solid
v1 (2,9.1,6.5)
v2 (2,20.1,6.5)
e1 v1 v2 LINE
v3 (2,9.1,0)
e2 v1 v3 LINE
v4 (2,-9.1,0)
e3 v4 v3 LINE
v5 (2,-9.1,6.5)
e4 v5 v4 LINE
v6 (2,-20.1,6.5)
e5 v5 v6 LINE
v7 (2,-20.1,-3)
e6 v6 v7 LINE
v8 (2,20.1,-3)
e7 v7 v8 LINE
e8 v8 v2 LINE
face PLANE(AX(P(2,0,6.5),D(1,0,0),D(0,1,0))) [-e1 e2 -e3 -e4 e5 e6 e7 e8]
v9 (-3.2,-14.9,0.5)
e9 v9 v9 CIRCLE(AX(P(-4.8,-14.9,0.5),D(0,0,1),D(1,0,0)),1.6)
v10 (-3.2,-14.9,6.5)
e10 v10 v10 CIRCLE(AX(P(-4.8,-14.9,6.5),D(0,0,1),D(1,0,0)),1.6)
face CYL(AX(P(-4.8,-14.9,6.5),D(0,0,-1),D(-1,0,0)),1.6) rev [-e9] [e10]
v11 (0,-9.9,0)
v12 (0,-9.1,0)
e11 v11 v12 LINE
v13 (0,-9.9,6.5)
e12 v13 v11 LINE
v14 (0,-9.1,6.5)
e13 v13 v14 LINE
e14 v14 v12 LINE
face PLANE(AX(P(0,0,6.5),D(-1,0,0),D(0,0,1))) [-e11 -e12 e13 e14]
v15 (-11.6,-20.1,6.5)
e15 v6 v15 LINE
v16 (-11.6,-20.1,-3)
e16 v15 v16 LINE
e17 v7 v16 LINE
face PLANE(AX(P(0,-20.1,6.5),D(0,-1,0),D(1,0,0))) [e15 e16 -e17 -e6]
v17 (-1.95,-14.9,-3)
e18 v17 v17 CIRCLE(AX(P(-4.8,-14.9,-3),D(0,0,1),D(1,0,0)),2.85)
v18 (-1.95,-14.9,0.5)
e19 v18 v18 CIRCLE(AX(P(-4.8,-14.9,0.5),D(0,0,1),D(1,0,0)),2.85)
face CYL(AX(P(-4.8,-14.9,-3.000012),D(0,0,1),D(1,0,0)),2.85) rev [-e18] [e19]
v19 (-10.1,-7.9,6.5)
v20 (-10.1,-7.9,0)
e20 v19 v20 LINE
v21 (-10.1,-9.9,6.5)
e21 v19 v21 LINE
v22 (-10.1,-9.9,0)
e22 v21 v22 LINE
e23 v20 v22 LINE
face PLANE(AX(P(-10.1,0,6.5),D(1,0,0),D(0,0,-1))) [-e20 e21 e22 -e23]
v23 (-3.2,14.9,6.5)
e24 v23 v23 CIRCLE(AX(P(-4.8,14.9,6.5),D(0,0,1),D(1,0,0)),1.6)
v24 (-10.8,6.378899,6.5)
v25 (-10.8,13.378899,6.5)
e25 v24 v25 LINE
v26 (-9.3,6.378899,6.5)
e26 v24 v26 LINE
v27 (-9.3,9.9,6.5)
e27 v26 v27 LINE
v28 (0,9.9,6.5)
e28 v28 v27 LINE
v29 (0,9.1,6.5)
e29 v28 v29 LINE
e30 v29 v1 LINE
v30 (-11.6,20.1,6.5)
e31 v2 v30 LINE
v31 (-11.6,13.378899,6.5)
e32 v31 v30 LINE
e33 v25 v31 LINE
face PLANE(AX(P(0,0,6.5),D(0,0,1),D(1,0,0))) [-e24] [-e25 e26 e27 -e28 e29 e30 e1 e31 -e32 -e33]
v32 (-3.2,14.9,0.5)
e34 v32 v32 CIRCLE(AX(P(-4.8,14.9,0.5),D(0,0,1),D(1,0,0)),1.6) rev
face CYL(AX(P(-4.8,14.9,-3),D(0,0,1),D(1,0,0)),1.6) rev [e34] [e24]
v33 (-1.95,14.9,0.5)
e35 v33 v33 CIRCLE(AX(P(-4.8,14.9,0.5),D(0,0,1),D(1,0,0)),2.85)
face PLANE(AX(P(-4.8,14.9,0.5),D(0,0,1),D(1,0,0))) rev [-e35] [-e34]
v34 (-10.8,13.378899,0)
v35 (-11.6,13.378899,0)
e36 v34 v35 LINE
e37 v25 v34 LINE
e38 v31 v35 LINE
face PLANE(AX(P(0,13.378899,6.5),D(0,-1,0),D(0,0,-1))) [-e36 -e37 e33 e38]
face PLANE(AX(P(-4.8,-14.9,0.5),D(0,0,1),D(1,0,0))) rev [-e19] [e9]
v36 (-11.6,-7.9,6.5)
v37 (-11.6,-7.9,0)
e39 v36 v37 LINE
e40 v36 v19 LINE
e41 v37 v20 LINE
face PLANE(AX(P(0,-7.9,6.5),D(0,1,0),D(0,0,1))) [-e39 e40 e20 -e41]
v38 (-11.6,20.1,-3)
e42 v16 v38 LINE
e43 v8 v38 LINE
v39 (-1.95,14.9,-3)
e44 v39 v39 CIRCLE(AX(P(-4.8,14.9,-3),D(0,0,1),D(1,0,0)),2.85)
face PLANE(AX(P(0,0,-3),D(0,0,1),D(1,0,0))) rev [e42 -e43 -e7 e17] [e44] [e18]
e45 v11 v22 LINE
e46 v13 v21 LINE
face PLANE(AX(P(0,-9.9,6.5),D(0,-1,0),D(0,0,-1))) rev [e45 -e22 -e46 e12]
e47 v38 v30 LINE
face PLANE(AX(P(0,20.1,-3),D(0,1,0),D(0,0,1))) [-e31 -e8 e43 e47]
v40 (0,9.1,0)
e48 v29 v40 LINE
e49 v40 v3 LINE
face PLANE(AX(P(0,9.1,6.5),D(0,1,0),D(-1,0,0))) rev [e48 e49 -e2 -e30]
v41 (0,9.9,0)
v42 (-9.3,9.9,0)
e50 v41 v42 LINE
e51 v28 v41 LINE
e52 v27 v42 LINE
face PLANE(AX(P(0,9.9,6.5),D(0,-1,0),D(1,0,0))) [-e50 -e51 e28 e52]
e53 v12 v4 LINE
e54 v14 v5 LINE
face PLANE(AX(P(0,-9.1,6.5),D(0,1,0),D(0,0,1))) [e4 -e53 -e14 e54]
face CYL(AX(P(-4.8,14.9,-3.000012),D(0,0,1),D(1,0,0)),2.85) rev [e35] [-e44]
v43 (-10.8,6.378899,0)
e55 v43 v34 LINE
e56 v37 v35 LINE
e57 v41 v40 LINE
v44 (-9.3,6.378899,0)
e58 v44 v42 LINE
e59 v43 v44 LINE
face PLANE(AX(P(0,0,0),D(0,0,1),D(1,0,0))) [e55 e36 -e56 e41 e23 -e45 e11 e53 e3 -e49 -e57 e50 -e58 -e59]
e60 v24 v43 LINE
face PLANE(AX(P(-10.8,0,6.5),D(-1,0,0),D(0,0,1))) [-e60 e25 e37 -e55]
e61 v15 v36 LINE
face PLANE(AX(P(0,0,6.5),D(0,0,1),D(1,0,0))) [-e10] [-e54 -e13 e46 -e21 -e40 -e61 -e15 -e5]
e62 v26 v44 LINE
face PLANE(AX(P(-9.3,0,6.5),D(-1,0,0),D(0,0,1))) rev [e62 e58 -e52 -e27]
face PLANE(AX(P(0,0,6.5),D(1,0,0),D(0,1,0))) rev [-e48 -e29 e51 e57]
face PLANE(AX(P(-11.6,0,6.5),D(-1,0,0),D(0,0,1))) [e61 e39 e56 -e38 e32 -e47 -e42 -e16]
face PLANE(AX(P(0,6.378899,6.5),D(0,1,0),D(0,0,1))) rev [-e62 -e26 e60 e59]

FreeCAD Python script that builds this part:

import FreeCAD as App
import Part
import Sketcher

V = App.Vector
Q = App.Units.Quantity

doc = App.newDocument("Part")
params = doc.addObject("Spreadsheet::Sheet", "Params")
for row, (alias, value) in enumerate([
    ("sketch1_diameter", "3.2 mm"),
    ("sketch1_width", "2 mm"),
    ("sketch1_height", "11 mm"),
    ("sketch1_height2", "7 mm"),
    ("sketch1_width2", "1.5 mm"),
    ("pad1_length", "6.5 mm"),
    ("sketch2_diameter", "5.7 mm"),
    ("sketch2_width", "13.6 mm"),
    ("sketch2_height", "40.2 mm"),
    ("pad2_length", "3 mm"),
    ("sketch3_diameter", "5.7 mm"),
    ("pocket1_length", "3.5 mm"),
    ("pocket1_length2", "4 mm"),
], start=1):
    params.set(f"A{row}", alias)
    params.set(f"B{row}", "=" + value)
    params.setAlias(f"B{row}", alias)

body = doc.addObject("PartDesign::Body", "Body")
body.AllowCompound = True

# Sketch on XY plane
sketch1 = doc.addObject("Sketcher::SketchObject", "Sketch")
body.addObject(sketch1)
sketch1.AttachmentSupport = (doc.XY_Plane, [""])
sketch1.MapMode = "FlatFace"
sketch1.addGeometry([
    Part.LineSegment(V(-10.1, -9.9, 0), V(-10.1, -7.9, 0)),  # 0
    Part.LineSegment(V(-10.1, -7.9, 0), V(-11.6, -7.9, 0)),  # 1
    Part.LineSegment(V(-11.6, -7.9, 0), V(-11.6, -20.1, 0)),  # 2
    Part.LineSegment(V(-11.6, -20.1, 0), V(2, -20.1, 0)),  # 3
    Part.LineSegment(V(2, -20.1, 0), V(2, -9.1, 0)),  # 4
    Part.LineSegment(V(2, -9.1, 0), V(0, -9.1, 0)),  # 5
    Part.LineSegment(V(0, -9.1, 0), V(0, -9.9, 0)),  # 6
    Part.LineSegment(V(0, -9.9, 0), V(-10.1, -9.9, 0)),  # 7
    Part.Circle(V(-4.8, -14.9, 0), V(0, 0, 1), 1.6),  # 8
    Part.LineSegment(V(-11.6, 20.1, 0), V(-11.6, 13.4, 0)),  # 9
    Part.LineSegment(V(-11.6, 13.4, 0), V(-10.8, 13.4, 0)),  # 10
    Part.LineSegment(V(-10.8, 13.4, 0), V(-10.8, 6.4, 0)),  # 11
    Part.LineSegment(V(-10.8, 6.4, 0), V(-9.3, 6.4, 0)),  # 12
    Part.LineSegment(V(-9.3, 6.4, 0), V(-9.3, 9.9, 0)),  # 13
    Part.LineSegment(V(-9.3, 9.9, 0), V(0, 9.9, 0)),  # 14
    Part.LineSegment(V(0, 9.9, 0), V(0, 9.1, 0)),  # 15
    Part.LineSegment(V(0, 9.1, 0), V(2, 9.1, 0)),  # 16
    Part.LineSegment(V(2, 9.1, 0), V(2, 20.1, 0)),  # 17
    Part.LineSegment(V(2, 20.1, 0), V(-11.6, 20.1, 0)),  # 18
    Part.Circle(V(-4.8, 14.9, 0), V(0, 0, 1), 1.6),  # 19
], False)
sketch1.addConstraint([
    Sketcher.Constraint("Coincident", 0, 2, 1, 1),
    Sketcher.Constraint("Coincident", 1, 2, 2, 1),
    Sketcher.Constraint("Coincident", 2, 2, 3, 1),
    Sketcher.Constraint("Coincident", 3, 2, 4, 1),
    Sketcher.Constraint("Coincident", 4, 2, 5, 1),
    Sketcher.Constraint("Coincident", 5, 2, 6, 1),
    Sketcher.Constraint("Coincident", 6, 2, 7, 1),
    Sketcher.Constraint("Coincident", 7, 2, 0, 1),
    Sketcher.Constraint("Coincident", 9, 2, 10, 1),
    Sketcher.Constraint("Coincident", 10, 2, 11, 1),
    Sketcher.Constraint("Coincident", 11, 2, 12, 1),
    Sketcher.Constraint("Coincident", 12, 2, 13, 1),
    Sketcher.Constraint("Coincident", 13, 2, 14, 1),
    Sketcher.Constraint("Coincident", 14, 2, 15, 1),
    Sketcher.Constraint("Coincident", 15, 2, 16, 1),
    Sketcher.Constraint("Coincident", 16, 2, 17, 1),
    Sketcher.Constraint("Coincident", 17, 2, 18, 1),
    Sketcher.Constraint("Coincident", 18, 2, 9, 1),
    Sketcher.Constraint("Vertical", 0),
    Sketcher.Constraint("Horizontal", 1),
    Sketcher.Constraint("Vertical", 2),
    Sketcher.Constraint("Horizontal", 3),
    Sketcher.Constraint("Vertical", 4),
    Sketcher.Constraint("Horizontal", 5),
    Sketcher.Constraint("Vertical", 6),
    Sketcher.Constraint("Horizontal", 7),
    Sketcher.Constraint("Vertical", 9),
    Sketcher.Constraint("Horizontal", 10),
    Sketcher.Constraint("Vertical", 11),
    Sketcher.Constraint("Horizontal", 12),
    Sketcher.Constraint("Vertical", 13),
    Sketcher.Constraint("Horizontal", 14),
    Sketcher.Constraint("Vertical", 15),
    Sketcher.Constraint("Horizontal", 16),
    Sketcher.Constraint("Vertical", 17),
    Sketcher.Constraint("Horizontal", 18),
    Sketcher.Constraint("Equal", 8, 19),
    Sketcher.Constraint("Symmetric", 6, 2, 14, 2, -1, 1),
    Sketcher.Constraint("Symmetric", 8, 3, 19, 3, -1),
    Sketcher.Constraint("Symmetric", 5, 2, 15, 2, -1),
    Sketcher.Constraint("Symmetric", 3, 2, 17, 2, -1),
    Sketcher.Constraint("Vertical", 2, 2, 9, 2),
    Sketcher.Constraint("Equal", 1, 12),
    Sketcher.Constraint("Equal", 16, 0),
    Sketcher.Constraint("Equal", 10, 6),
    Sketcher.Constraint("Diameter", 8, Q("3.2 mm")),
    Sketcher.Constraint("DistanceX", 5, 2, 5, 1, Q("2 mm")),
    Sketcher.Constraint("DistanceY", 4, 1, 4, 2, Q("11 mm")),
    Sketcher.Constraint("DistanceY", 11, 2, 11, 1, Q("7 mm")),
    Sketcher.Constraint("DistanceX", 1, 2, 1, 1, Q("1.5 mm")),
    Sketcher.Constraint("DistanceX", 3, 1, 3, 2, Q("13.6 mm")),
    Sketcher.Constraint("DistanceX", 10, 1, 10, 2, Q("0.8 mm")),
    Sketcher.Constraint("DistanceY", 8, 3, 0, 2, Q("7 mm")),
    Sketcher.Constraint("DistanceY", 2, 2, 19, 3, Q("35 mm")),
    Sketcher.Constraint("DistanceX", 10, 2, 19, 3, Q("6 mm")),
    Sketcher.Constraint("DistanceY", 9, 2, 9, 1, Q("6.721101 mm")),
])
sketch1.setExpression("Constraints[45]", "Params.sketch1_diameter")
sketch1.setExpression("Constraints[46]", "Params.sketch1_width")
sketch1.setExpression("Constraints[47]", "Params.sketch1_height")
sketch1.setExpression("Constraints[48]", "Params.sketch1_height2")
sketch1.setExpression("Constraints[49]", "Params.sketch1_width2")
pad1 = doc.addObject("PartDesign::Pad", "Pad")
body.addObject(pad1)
pad1.Profile = sketch1
pad1.setExpression("Length", "Params.pad1_length")

# Sketch on XY plane
sketch2 = doc.addObject("Sketcher::SketchObject", "Sketch001")
body.addObject(sketch2)
sketch2.AttachmentSupport = (doc.XY_Plane, [""])
sketch2.MapMode = "FlatFace"
sketch2.addGeometry([
    Part.LineSegment(V(-11.6, 20.1, 0), V(-11.6, -20.1, 0)),  # 0
    Part.LineSegment(V(-11.6, -20.1, 0), V(2, -20.1, 0)),  # 1
    Part.LineSegment(V(2, -20.1, 0), V(2, 20.1, 0)),  # 2
    Part.LineSegment(V(2, 20.1, 0), V(-11.6, 20.1, 0)),  # 3
    Part.Circle(V(-4.8, -14.9, 0), V(0, 0, 1), 2.9),  # 4
    Part.Circle(V(-4.8, 14.9, 0), V(0, 0, 1), 2.9),  # 5
], False)
sketch2.addConstraint([
    Sketcher.Constraint("Coincident", 0, 2, 1, 1),
    Sketcher.Constraint("Coincident", 1, 2, 2, 1),
    Sketcher.Constraint("Coincident", 2, 2, 3, 1),
    Sketcher.Constraint("Coincident", 3, 2, 0, 1),
    Sketcher.Constraint("Vertical", 0),
    Sketcher.Constraint("Horizontal", 1),
    Sketcher.Constraint("Vertical", 2),
    Sketcher.Constraint("Horizontal", 3),
    Sketcher.Constraint("Equal", 4, 5),
    Sketcher.Constraint("Symmetric", 4, 3, 5, 3, -1),
    Sketcher.Constraint("Diameter", 4, Q("5.7 mm")),
    Sketcher.Constraint("DistanceX", 1, 1, 1, 2, Q("13.6 mm")),
    Sketcher.Constraint("DistanceY", 0, 2, 0, 1, Q("40.2 mm")),
    Sketcher.Constraint("DistanceX", -1, 1, 1, 2, Q("2 mm")),
    Sketcher.Constraint("DistanceY", 0, 2, 5, 3, Q("35 mm")),
    Sketcher.Constraint("DistanceY", 4, 3, 2, 2, Q("35 mm")),
    Sketcher.Constraint("DistanceX", 4, 3, -1, 1, Q("4.8 mm")),
])
sketch2.setExpression("Constraints[10]", "Params.sketch2_diameter")
sketch2.setExpression("Constraints[11]", "Params.sketch2_width")
sketch2.setExpression("Constraints[12]", "Params.sketch2_height")
pad2 = doc.addObject("PartDesign::Pad", "Pad001")
body.addObject(pad2)
pad2.Profile = sketch2
pad2.setExpression("Length", "Params.pad2_length")
pad2.Reversed = True

# Sketch on XY plane
sketch3 = doc.addObject("Sketcher::SketchObject", "Sketch002")
body.addObject(sketch3)
sketch3.AttachmentSupport = (doc.XY_Plane, [""])
sketch3.MapMode = "FlatFace"
sketch3.AttachmentOffset = App.Placement(V(0, 0, -3), App.Rotation())
sketch3.addGeometry([
    Part.Circle(V(-4.8, 14.9, 0), V(0, 0, 1), 2.9),
    Part.Circle(V(-4.8, -14.9, 0), V(0, 0, 1), 2.9),
], False)
sketch3.addConstraint([
    Sketcher.Constraint("Equal", 0, 1),
    Sketcher.Constraint("Symmetric", 0, 3, 1, 3, -1),
    Sketcher.Constraint("Diameter", 0, Q("5.7 mm")),
    Sketcher.Constraint("DistanceX", 0, 3, -1, 1, Q("4.8 mm")),
    Sketcher.Constraint("DistanceY", -1, 1, 0, 3, Q("14.9 mm")),
])
sketch3.setExpression("Constraints[2]", "Params.sketch3_diameter")
pocket1 = doc.addObject("PartDesign::Pocket", "Pocket")
body.addObject(pocket1)
pocket1.Profile = sketch3
pocket1.Type = "TwoLengths"
pocket1.setExpression("Length", "Params.pocket1_length")
pocket1.setExpression("Length2", "Params.pocket1_length2")
pocket1.Reversed = True

doc.recompute()
